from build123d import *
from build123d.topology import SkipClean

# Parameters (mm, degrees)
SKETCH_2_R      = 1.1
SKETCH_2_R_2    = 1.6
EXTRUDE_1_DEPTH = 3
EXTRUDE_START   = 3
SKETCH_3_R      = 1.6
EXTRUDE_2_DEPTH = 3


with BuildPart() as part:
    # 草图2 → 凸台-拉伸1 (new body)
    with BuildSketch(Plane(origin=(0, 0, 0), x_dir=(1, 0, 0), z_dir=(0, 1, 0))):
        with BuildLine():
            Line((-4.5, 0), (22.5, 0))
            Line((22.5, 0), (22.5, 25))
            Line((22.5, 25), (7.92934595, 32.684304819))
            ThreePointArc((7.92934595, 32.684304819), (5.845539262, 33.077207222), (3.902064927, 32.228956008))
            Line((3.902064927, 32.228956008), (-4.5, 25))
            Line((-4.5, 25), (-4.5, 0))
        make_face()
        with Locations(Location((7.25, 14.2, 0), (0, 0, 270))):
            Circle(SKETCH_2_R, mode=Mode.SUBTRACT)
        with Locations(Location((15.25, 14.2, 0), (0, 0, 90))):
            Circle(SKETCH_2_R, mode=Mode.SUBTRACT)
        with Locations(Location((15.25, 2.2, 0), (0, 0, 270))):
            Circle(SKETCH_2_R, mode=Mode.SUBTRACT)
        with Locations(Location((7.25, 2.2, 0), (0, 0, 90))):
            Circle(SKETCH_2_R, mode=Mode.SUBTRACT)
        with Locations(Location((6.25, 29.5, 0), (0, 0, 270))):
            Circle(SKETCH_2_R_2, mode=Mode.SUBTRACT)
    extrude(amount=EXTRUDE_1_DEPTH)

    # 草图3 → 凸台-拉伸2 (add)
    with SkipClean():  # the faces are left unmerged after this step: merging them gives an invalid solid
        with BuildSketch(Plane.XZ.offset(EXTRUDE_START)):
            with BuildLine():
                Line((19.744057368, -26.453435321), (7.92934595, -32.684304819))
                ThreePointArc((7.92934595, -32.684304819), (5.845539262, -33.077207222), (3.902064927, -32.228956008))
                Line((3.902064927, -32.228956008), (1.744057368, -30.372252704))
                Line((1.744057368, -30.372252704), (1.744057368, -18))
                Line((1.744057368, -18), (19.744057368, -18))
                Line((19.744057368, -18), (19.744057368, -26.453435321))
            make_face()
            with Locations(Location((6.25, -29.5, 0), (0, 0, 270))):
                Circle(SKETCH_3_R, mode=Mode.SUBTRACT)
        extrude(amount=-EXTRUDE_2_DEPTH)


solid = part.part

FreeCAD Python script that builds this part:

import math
import FreeCAD as App
import Part
import Sketcher
from FreeCAD import Vector
Q = App.Units.Quantity

doc = App.newDocument("Part")
body = doc.addObject("PartDesign::Body", "Body")

# Sketch on XZ plane
sketch1 = body.newObject("Sketcher::SketchObject", "Sketch")
sketch1.AttachmentSupport = (doc.getObject("XZ_Plane"), [""])
sketch1.MapMode = "FlatFace"
sketch1.addGeometry([
    Part.LineSegment(Vector(-4.5, 0, 0), Vector(22.5, 0, 0)),  # 0
    Part.LineSegment(Vector(22.5, 0, 0), Vector(22.5, -25, 0)),  # 1
    Part.LineSegment(Vector(22.5, -25, 0), Vector(7.9, -32.7, 0)),  # 2
    Part.ArcOfCircle(Part.Circle(Vector(6.2, -29.5, 0), Vector(0, 0, 1), 3.6), math.radians(-131), math.radians(-62)),  # 3
    Part.LineSegment(Vector(3.9, -32.2, 0), Vector(-4.5, -25, 0)),  # 4
    Part.LineSegment(Vector(-4.5, -25, 0), Vector(-4.5, 0, 0)),  # 5
    Part.Circle(Vector(7.2, -2.2, 0), Vector(0, 0, 1), 1.1),  # 6
    Part.Circle(Vector(7.2, -14.2, 0), Vector(0, 0, 1), 1.1),  # 7
    Part.Circle(Vector(15.2, -2.2, 0), Vector(0, 0, 1), 1.1),  # 8
    Part.Circle(Vector(15.2, -14.2, 0), Vector(0, 0, 1), 1.1),  # 9
    Part.Circle(Vector(6.2, -29.5, 0), Vector(0, 0, 1), 1.6),  # 10
], False)
sketch1.addConstraint([
    Sketcher.Constraint("Coincident", 0, 2, 1, 1),
    Sketcher.Constraint("Coincident", 1, 2, 2, 1),
    Sketcher.Constraint("Tangent", 2, 2, 3, 2),
    Sketcher.Constraint("Tangent", 3, 1, 4, 1),
    Sketcher.Constraint("Coincident", 4, 2, 5, 1),
    Sketcher.Constraint("Coincident", 5, 2, 0, 1),
    Sketcher.Constraint("Horizontal", 0),
    Sketcher.Constraint("Vertical", 1),
    Sketcher.Constraint("Vertical", 5),
    Sketcher.Constraint("Coincident", 10, 3, 3, 3),
    Sketcher.Constraint("Equal", 6, 7),
    Sketcher.Constraint("Equal", 7, 8),
    Sketcher.Constraint("Equal", 8, 9),
    Sketcher.Constraint("PointOnObject", 0, 2, -1),
    Sketcher.Constraint("Horizontal", 6, 3, 8, 3),
    Sketcher.Constraint("Horizontal", 7, 3, 9, 3),
    Sketcher.Constraint("Horizontal", 1, 2, 4, 2),
    Sketcher.Constraint("Vertical", 6, 3, 7, 3),
    Sketcher.Constraint("Vertical", 8, 3, 9, 3),
    Sketcher.Constraint("Diameter", 6, Q("2.2 mm")),
    Sketcher.Constraint("Diameter", 10, Q("3.2 mm")),
    Sketcher.Constraint("Radius", 3, Q("3.6 mm")),
    Sketcher.Constraint("DistanceX", 0, 1, 0, 2, Q("27 mm")),
    Sketcher.Constraint("DistanceY", 1, 2, 1, 1, Q("25 mm")),
    Sketcher.Constraint("DistanceX", 3, 3, 6, 3, Q("1 mm")),
    Sketcher.Constraint("DistanceY", 7, 3, 6, 3, Q("12 mm")),
    Sketcher.Constraint("DistanceX", 6, 3, 8, 3, Q("8 mm")),
    Sketcher.Constraint("DistanceY", 3, 3, -1, 1, Q("29.5 mm")),
    Sketcher.Constraint("DistanceY", 6, 3, -1, 1, Q("2.2 mm")),
    Sketcher.Constraint("DistanceX", -1, 1, 0, 2, Q("22.5 mm")),
    Sketcher.Constraint("DistanceX", -1, 1, 3, 3, Q("6.25 mm")),
])
pad1 = body.newObject("PartDesign::Pad", "Pad")
pad1.Profile = sketch1
pad1.Length = 3
pad1.Reversed = True

# Sketch on XZ plane
sketch2 = body.newObject("Sketcher::SketchObject", "Sketch001")
sketch2.AttachmentSupport = (doc.getObject("XZ_Plane"), [""])
sketch2.MapMode = "FlatFace"
sketch2.AttachmentOffset = App.Placement(Vector(0, 0, 3), App.Rotation())
sketch2.addGeometry([
    Part.LineSegment(Vector(7.9, -32.7, 0), Vector(19.7, -26.5, 0)),  # 0
    Part.LineSegment(Vector(19.7, -26.5, 0), Vector(19.7, -18, 0)),  # 1
    Part.LineSegment(Vector(19.7, -18, 0), Vector(1.7, -18, 0)),  # 2
    Part.LineSegment(Vector(1.7, -18, 0), Vector(1.7, -30.4, 0)),  # 3
    Part.LineSegment(Vector(1.7, -30.4, 0), Vector(3.9, -32.2, 0)),  # 4
    Part.ArcOfCircle(Part.Circle(Vector(6.2, -29.5, 0), Vector(0, 0, 1), 3.6), math.radians(-131), math.radians(-62)),  # 5
    Part.Circle(Vector(6.2, -29.5, 0), Vector(0, 0, 1), 1.6),  # 6
], False)
sketch2.addConstraint([
    Sketcher.Constraint("Coincident", 0, 2, 1, 1),
    Sketcher.Constraint("Coincident", 1, 2, 2, 1),
    Sketcher.Constraint("Coincident", 2, 2, 3, 1),
    Sketcher.Constraint("Coincident", 3, 2, 4, 1),
    Sketcher.Constraint("Tangent", 4, 2, 5, 1),
    Sketcher.Constraint("Tangent", 5, 2, 0, 1),
    Sketcher.Constraint("Vertical", 1),
    Sketcher.Constraint("Horizontal", 2),
    Sketcher.Constraint("Vertical", 3),
    Sketcher.Constraint("Coincident", 6, 3, 5, 3),
    Sketcher.Constraint("Diameter", 6, Q("3.2 mm")),
    Sketcher.Constraint("Radius", 5, Q("3.6 mm")),
    Sketcher.Constraint("DistanceX", 2, 2, 2, 1, Q("18 mm")),
    Sketcher.Constraint("DistanceY", 1, 2, -1, 1, Q("18 mm")),
    Sketcher.Constraint("DistanceY", 5, 3, -1, 1, Q("29.5 mm")),
    Sketcher.Constraint("DistanceX", -1, 1, 5, 3, Q("6.25 mm")),
    Sketcher.Constraint("DistanceY", 1, 1, 1, 2, Q("8.453435 mm")),
    Sketcher.Constraint("DistanceY", 3, 2, 3, 1, Q("12.372253 mm")),
    Sketcher.Constraint("DistanceY", 4, 2, 0, 2, Q("5.775521 mm")),
])
pad2 = body.newObject("PartDesign::Pad", "Pad001")
pad2.Profile = sketch2
pad2.Length = 3
pad2.Reversed = True

doc.recompute()
